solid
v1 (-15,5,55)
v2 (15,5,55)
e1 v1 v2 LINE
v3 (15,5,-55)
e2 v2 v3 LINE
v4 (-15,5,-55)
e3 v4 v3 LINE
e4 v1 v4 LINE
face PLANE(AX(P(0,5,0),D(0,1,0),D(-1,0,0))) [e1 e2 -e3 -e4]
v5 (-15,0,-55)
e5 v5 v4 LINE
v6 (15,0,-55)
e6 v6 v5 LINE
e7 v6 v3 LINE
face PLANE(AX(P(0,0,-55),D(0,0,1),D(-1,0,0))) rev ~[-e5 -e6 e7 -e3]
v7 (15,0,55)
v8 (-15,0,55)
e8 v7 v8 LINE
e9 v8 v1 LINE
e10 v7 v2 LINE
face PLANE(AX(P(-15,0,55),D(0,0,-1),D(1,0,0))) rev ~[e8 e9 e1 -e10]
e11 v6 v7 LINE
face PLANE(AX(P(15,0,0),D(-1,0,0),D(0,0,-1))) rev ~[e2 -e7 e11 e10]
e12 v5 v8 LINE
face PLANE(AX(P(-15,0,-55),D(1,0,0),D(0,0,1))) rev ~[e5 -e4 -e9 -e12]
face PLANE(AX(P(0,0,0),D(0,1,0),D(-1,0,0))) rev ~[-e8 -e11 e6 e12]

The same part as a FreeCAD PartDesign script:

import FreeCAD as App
import Part
import Sketcher

doc = App.newDocument("Part")
body = doc.addObject("PartDesign::Body", "Body")

sketch1 = doc.addObject("Sketcher::SketchObject", "Sketch")
body.addObject(sketch1)
sketch1.AttachmentSupport = (doc.XZ_Plane, [""])
sketch1.MapMode = "FlatFace"
sketch1.addGeometry([
    Part.LineSegment(App.Vector(-15, -55, 0), App.Vector(-15, 55, 0)),
    Part.LineSegment(App.Vector(-15, 55, 0), App.Vector(15, 55, 0)),
    Part.LineSegment(App.Vector(15, 55, 0), App.Vector(15, -55, 0)),
    Part.LineSegment(App.Vector(15, -55, 0), App.Vector(-15, -55, 0)),
], False)
sketch1.addConstraint([
    Sketcher.Constraint("Coincident", 0, 2, 1, 1),
    Sketcher.Constraint("Coincident", 1, 2, 2, 1),
    Sketcher.Constraint("Coincident", 2, 2, 3, 1),
    Sketcher.Constraint("Coincident", 3, 2, 0, 1),
    Sketcher.Constraint("Vertical", 0),
    Sketcher.Constraint("Horizontal", 1),
    Sketcher.Constraint("Vertical", 2),
    Sketcher.Constraint("Horizontal", 3),
    Sketcher.Constraint("Symmetric", 0, 2, 2, 2, -1, 1),
    Sketcher.Constraint("DistanceX", 1, 1, 1, 2, 30.0),
    Sketcher.Constraint("DistanceY", 0, 1, 0, 2, 110.0),
])
pad1 = doc.addObject("PartDesign::Pad", "Pad")
body.addObject(pad1)
pad1.Profile = sketch1
pad1.Length = 5
pad1.Reversed = True

doc.recompute()
